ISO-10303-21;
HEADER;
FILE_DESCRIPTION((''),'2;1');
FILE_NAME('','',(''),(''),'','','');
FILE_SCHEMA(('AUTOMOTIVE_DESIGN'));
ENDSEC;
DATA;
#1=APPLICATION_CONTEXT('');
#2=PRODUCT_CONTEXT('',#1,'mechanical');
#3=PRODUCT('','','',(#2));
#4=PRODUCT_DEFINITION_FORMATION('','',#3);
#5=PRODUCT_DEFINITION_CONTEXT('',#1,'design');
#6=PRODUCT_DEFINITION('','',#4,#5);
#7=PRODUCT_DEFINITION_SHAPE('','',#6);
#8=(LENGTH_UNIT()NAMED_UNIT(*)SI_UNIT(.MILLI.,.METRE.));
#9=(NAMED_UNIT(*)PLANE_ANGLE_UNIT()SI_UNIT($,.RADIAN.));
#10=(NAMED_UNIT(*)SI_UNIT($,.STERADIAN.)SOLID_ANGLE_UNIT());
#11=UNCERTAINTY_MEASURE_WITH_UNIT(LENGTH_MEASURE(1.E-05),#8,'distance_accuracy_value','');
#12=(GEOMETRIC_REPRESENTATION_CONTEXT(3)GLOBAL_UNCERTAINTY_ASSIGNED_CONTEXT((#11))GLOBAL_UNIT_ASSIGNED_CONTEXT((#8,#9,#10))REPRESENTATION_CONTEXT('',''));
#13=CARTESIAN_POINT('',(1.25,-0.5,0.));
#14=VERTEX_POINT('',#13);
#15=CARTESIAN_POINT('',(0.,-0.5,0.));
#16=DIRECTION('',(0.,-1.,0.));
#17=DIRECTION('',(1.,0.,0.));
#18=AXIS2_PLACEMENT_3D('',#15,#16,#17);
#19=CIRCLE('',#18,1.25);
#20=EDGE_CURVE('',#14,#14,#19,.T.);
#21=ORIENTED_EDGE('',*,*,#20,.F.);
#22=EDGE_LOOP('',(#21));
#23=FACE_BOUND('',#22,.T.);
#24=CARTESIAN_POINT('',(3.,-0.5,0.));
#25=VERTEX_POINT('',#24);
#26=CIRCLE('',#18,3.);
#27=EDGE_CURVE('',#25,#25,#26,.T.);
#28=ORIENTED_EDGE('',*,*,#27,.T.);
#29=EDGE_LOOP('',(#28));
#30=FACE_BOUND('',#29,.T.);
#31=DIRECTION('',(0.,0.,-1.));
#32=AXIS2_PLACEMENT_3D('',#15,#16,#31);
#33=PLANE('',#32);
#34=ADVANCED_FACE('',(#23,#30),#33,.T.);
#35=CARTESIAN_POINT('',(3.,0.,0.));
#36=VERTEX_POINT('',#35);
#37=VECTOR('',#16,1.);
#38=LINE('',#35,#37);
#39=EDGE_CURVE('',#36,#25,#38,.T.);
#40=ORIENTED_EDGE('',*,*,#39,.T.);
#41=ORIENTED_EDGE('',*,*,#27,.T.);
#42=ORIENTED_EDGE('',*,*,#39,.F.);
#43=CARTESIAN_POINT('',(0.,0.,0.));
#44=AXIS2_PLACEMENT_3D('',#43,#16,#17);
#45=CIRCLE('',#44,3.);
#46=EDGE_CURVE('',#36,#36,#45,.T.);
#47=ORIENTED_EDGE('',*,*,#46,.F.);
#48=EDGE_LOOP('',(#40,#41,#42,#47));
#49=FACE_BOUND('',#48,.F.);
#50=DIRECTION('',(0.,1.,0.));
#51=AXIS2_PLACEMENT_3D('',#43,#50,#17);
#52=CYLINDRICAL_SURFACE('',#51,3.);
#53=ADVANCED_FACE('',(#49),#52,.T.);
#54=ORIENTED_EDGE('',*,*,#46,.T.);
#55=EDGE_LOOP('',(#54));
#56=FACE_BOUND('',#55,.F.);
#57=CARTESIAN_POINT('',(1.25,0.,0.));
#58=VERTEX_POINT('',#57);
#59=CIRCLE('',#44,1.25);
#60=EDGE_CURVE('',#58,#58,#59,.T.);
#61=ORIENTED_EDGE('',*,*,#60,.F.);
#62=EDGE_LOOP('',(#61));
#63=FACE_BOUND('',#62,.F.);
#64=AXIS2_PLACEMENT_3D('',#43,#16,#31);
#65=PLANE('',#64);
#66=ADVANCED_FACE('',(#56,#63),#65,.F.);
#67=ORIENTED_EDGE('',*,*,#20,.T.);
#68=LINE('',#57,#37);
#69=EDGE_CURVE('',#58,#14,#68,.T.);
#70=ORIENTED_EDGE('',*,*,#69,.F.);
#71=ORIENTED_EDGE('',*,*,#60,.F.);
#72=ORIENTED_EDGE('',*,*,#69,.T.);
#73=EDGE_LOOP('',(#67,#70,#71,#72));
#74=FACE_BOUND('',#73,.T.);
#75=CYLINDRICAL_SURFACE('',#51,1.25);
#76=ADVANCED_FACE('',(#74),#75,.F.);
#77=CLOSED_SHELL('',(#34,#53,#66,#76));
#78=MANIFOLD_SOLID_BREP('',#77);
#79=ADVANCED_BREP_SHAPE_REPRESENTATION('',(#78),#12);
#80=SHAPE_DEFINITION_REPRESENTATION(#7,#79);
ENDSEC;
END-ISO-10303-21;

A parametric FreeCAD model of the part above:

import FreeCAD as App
import Part
import Sketcher
from FreeCAD import Vector
Q = App.Units.Quantity

doc = App.newDocument("Part")
body = doc.addObject("PartDesign::Body", "Body")

# Sketch on XZ plane
sketch1 = body.newObject("Sketcher::SketchObject", "Sketch")
sketch1.AttachmentSupport = (doc.getObject("XZ_Plane"), [""])
sketch1.MapMode = "FlatFace"
sketch1.addGeometry(Part.Circle(Vector(0, 0, 0), Vector(0, 0, 1), 3), False)
sketch1.addGeometry(Part.Circle(Vector(0, 0, 0), Vector(0, 0, 1), 1.2), False)
sketch1.addConstraint(Sketcher.Constraint("Coincident", 0, 3, -1, 1))
sketch1.addConstraint(Sketcher.Constraint("Coincident", 1, 3, -1, 1))
sketch1.addConstraint(Sketcher.Constraint("Diameter", 0, Q("6 mm")))
sketch1.addConstraint(Sketcher.Constraint("Diameter", 1, Q("2.5 mm")))
pad1 = body.newObject("PartDesign::Pad", "Pad")
pad1.Profile = sketch1
pad1.Length = 0.5

doc.recompute()
